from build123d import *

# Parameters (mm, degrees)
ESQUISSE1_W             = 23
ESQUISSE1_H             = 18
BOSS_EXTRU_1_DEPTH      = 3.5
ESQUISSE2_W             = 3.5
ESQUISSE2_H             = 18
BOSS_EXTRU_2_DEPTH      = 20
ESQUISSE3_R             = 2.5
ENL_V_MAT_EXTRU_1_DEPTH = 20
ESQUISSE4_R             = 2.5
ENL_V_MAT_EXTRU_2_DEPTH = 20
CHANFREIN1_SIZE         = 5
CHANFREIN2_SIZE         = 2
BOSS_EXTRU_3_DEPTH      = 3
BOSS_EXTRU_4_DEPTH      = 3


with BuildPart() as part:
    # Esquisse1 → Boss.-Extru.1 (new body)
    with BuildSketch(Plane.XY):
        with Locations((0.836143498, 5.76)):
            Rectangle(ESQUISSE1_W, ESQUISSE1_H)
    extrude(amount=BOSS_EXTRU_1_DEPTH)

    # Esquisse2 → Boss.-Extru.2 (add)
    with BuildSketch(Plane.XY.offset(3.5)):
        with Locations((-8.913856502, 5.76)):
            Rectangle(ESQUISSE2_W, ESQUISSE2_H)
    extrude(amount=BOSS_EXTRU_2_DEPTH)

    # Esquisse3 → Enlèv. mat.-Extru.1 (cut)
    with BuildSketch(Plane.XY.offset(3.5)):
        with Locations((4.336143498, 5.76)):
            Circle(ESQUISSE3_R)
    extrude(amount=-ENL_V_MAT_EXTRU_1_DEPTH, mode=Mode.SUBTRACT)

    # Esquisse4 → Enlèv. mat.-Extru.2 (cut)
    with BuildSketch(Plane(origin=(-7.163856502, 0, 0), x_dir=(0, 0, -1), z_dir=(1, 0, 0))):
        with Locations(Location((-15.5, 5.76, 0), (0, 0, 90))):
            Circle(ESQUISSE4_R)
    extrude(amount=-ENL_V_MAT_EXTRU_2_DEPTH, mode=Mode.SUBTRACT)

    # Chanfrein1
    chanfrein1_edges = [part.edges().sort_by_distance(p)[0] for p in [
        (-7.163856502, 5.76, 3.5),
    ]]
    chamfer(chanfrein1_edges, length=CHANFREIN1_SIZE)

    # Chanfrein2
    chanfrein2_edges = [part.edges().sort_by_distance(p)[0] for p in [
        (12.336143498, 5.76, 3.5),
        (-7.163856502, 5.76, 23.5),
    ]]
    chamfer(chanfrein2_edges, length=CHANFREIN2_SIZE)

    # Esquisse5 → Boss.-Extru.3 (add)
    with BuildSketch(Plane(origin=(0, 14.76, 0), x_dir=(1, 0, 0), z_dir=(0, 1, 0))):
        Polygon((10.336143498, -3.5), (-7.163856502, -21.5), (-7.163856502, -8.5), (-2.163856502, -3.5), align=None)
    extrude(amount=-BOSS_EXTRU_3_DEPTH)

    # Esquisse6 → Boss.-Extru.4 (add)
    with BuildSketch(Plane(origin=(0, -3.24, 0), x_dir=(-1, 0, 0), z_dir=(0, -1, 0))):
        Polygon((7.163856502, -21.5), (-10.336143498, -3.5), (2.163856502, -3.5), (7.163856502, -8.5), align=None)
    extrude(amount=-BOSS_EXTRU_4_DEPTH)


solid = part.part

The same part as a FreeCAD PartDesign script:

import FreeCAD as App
import Part
import Sketcher
Q = App.Units.Quantity


def edges_at(feature, points):
    """Names of the edges that pass closest to the given points."""
    edges = feature.Shape.Edges
    near = lambda p: min(range(len(edges)), key=lambda i: edges[i].distToShape(Part.Vertex(*p))[0])
    return sorted({f"Edge{near(p) + 1}" for p in points})

doc = App.newDocument("Part")
body = doc.addObject("PartDesign::Body", "Body")

# Sketch on XY plane
sketch1 = body.newObject("Sketcher::SketchObject", "Sketch")
sketch1.AttachmentSupport = (doc.getObject("XY_Plane"), [""])
sketch1.MapMode = "FlatFace"
sketch1.addGeometry(Part.LineSegment(App.Vector(-11, 15, 0), App.Vector(-11, -3, 0)), False)
sketch1.addGeometry(Part.LineSegment(App.Vector(-11, -3, 0), App.Vector(12, -3, 0)), False)
sketch1.addGeometry(Part.LineSegment(App.Vector(12, -3, 0), App.Vector(12, 15, 0)), False)
sketch1.addGeometry(Part.LineSegment(App.Vector(12, 15, 0), App.Vector(-11, 15, 0)), False)
sketch1.addConstraint(Sketcher.Constraint("Coincident", 0, 2, 1, 1))
sketch1.addConstraint(Sketcher.Constraint("Coincident", 1, 2, 2, 1))
sketch1.addConstraint(Sketcher.Constraint("Coincident", 2, 2, 3, 1))
sketch1.addConstraint(Sketcher.Constraint("Coincident", 3, 2, 0, 1))
sketch1.addConstraint(Sketcher.Constraint("Vertical", 0))
sketch1.addConstraint(Sketcher.Constraint("Horizontal", 1))
sketch1.addConstraint(Sketcher.Constraint("Vertical", 2))
sketch1.addConstraint(Sketcher.Constraint("Horizontal", 3))
sketch1.addConstraint(Sketcher.Constraint("DistanceX", 1, 1, 1, 2, 23.0))
sketch1.addConstraint(Sketcher.Constraint("DistanceY", 0, 2, 0, 1, 18.0))
sketch1.addConstraint(Sketcher.Constraint("DistanceY", 0, 2, -1, 1, 3.24))
sketch1.addConstraint(Sketcher.Constraint("DistanceX", 0, 2, -1, 1, 10.663857))
pad1 = body.newObject("PartDesign::Pad", "Pad")
pad1.Profile = sketch1
pad1.Length = 3.5

# Sketch on XY plane
sketch2 = body.newObject("Sketcher::SketchObject", "Sketch001")
sketch2.AttachmentSupport = (doc.getObject("XY_Plane"), [""])
sketch2.MapMode = "FlatFace"
sketch2.AttachmentOffset = App.Placement(App.Vector(0, 0, 3.5), App.Rotation())
sketch2.addGeometry(Part.LineSegment(App.Vector(-10.7, 14.8, 0), App.Vector(-10.7, -3.2, 0)), False)
sketch2.addGeometry(Part.LineSegment(App.Vector(-10.7, -3.2, 0), App.Vector(-7.2, -3.2, 0)), False)
sketch2.addGeometry(Part.LineSegment(App.Vector(-7.2, -3.2, 0), App.Vector(-7.2, 14.8, 0)), False)
sketch2.addGeometry(Part.LineSegment(App.Vector(-7.2, 14.8, 0), App.Vector(-10.7, 14.8, 0)), False)
sketch2.addConstraint(Sketcher.Constraint("Coincident", 0, 2, 1, 1))
sketch2.addConstraint(Sketcher.Constraint("Coincident", 1, 2, 2, 1))
sketch2.addConstraint(Sketcher.Constraint("Coincident", 2, 2, 3, 1))
sketch2.addConstraint(Sketcher.Constraint("Coincident", 3, 2, 0, 1))
sketch2.addConstraint(Sketcher.Constraint("Vertical", 0))
sketch2.addConstraint(Sketcher.Constraint("Horizontal", 1))
sketch2.addConstraint(Sketcher.Constraint("Vertical", 2))
sketch2.addConstraint(Sketcher.Constraint("Horizontal", 3))
sketch2.addConstraint(Sketcher.Constraint("DistanceY", 0, 2, 0, 1, 18.0))
sketch2.addConstraint(Sketcher.Constraint("DistanceX", 1, 1, 1, 2, 3.5))
sketch2.addConstraint(Sketcher.Constraint("DistanceY", 0, 2, -1, 1, 3.24))
sketch2.addConstraint(Sketcher.Constraint("DistanceX", 0, 2, -1, 1, 10.663857))
pad2 = body.newObject("PartDesign::Pad", "Pad001")
pad2.Profile = sketch2
pad2.Length = 20

# Sketch on XY plane
sketch3 = body.newObject("Sketcher::SketchObject", "Sketch002")
sketch3.AttachmentSupport = (doc.getObject("XY_Plane"), [""])
sketch3.MapMode = "FlatFace"
sketch3.AttachmentOffset = App.Placement(App.Vector(0, 0, 3.5), App.Rotation())
sketch3.addGeometry(Part.Circle(App.Vector(4.3, 5.8, 0), App.Vector(0, 0, 1), 2.5), False)
sketch3.addConstraint(Sketcher.Constraint("Diameter", 0, 5.0))
sketch3.addConstraint(Sketcher.Constraint("DistanceY", -1, 1, 0, 3, 5.76))
sketch3.addConstraint(Sketcher.Constraint("DistanceX", -1, 1, 0, 3, 4.336143))
pocket1 = body.newObject("PartDesign::Pocket", "Pocket")
pocket1.Profile = sketch3
pocket1.Length = 20

# Sketch on YZ plane
sketch4 = body.newObject("Sketcher::SketchObject", "Sketch003")
sketch4.AttachmentSupport = (doc.getObject("YZ_Plane"), [""])
sketch4.MapMode = "FlatFace"
sketch4.AttachmentOffset = App.Placement(App.Vector(0, 0, -7.163857), App.Rotation())
sketch4.addGeometry(Part.Circle(App.Vector(5.8, 15.5, 0), App.Vector(0, 0, 1), 2.5), False)
sketch4.addConstraint(Sketcher.Constraint("Diameter", 0, 5.0))
sketch4.addConstraint(Sketcher.Constraint("DistanceY", -1, 1, 0, 3, 15.5))
sketch4.addConstraint(Sketcher.Constraint("DistanceX", -1, 1, 0, 3, 5.76))
pocket2 = body.newObject("PartDesign::Pocket", "Pocket001")
pocket2.Profile = sketch4
pocket2.Length = 20
doc.recompute()

chamfer = body.newObject("PartDesign::Chamfer", "Chamfer")
chamfer.Base = (pocket2, edges_at(pocket2, [(-7.164, 5.76, 3.5)]))
chamfer.Size = 5
doc.recompute()

chamfer2 = body.newObject("PartDesign::Chamfer", "Chamfer001")
chamfer2.Base = (chamfer, edges_at(chamfer, [(12.336, 5.76, 3.5), (-7.164, 5.76, 23.5)]))
chamfer2.Size = 2

# Sketch on XZ plane
sketch5 = body.newObject("Sketcher::SketchObject", "Sketch004")
sketch5.AttachmentSupport = (doc.getObject("XZ_Plane"), [""])
sketch5.MapMode = "FlatFace"
sketch5.AttachmentOffset = App.Placement(App.Vector(0, 0, -14.76), App.Rotation())
sketch5.addGeometry(Part.LineSegment(App.Vector(-7, 22, 0), App.Vector(10, 4, 0)), False)
sketch5.addGeometry(Part.LineSegment(App.Vector(10, 4, 0), App.Vector(-2, 4, 0)), False)
sketch5.addGeometry(Part.LineSegment(App.Vector(-2, 4, 0), App.Vector(-7, 8, 0)), False)
sketch5.addGeometry(Part.LineSegment(App.Vector(-7, 8, 0), App.Vector(-7, 22, 0)), False)
sketch5.addConstraint(Sketcher.Constraint("Coincident", 0, 2, 1, 1))
sketch5.addConstraint(Sketcher.Constraint("Coincident", 1, 2, 2, 1))
sketch5.addConstraint(Sketcher.Constraint("Coincident", 2, 2, 3, 1))
sketch5.addConstraint(Sketcher.Constraint("Coincident", 3, 2, 0, 1))
sketch5.addConstraint(Sketcher.Constraint("Horizontal", 1))
sketch5.addConstraint(Sketcher.Constraint("Vertical", 3))
sketch5.addConstraint(Sketcher.Constraint("DistanceY", 3, 1, 3, 2, 13.0))
sketch5.addConstraint(Sketcher.Constraint("Angle", 2, Q("135 deg")))
sketch5.addConstraint(Sketcher.Constraint("DistanceX", 1, 2, 1, 1, 12.5))
sketch5.addConstraint(Sketcher.Constraint("DistanceX", 2, 2, 1, 2, 5.0))
sketch5.addConstraint(Sketcher.Constraint("DistanceY", -1, 1, 0, 2, 3.5))
sketch5.addConstraint(Sketcher.Constraint("DistanceX", -1, 1, 0, 2, 10.336143))
pad3 = body.newObject("PartDesign::Pad", "Pad002")
pad3.Profile = sketch5
pad3.Length = 3

# Sketch on XZ plane
sketch6 = body.newObject("Sketcher::SketchObject", "Sketch005")
sketch6.AttachmentSupport = (doc.getObject("XZ_Plane"), [""])
sketch6.MapMode = "FlatFace"
sketch6.AttachmentOffset = App.Placement(App.Vector(0, 0, 3.24), App.Rotation())
sketch6.addGeometry(Part.LineSegment(App.Vector(10, 4, 0), App.Vector(-7, 22, 0)), False)
sketch6.addGeometry(Part.LineSegment(App.Vector(-7, 22, 0), App.Vector(-7, 8, 0)), False)
sketch6.addGeometry(Part.LineSegment(App.Vector(-7, 8, 0), App.Vector(-2, 4, 0)), False)
sketch6.addGeometry(Part.LineSegment(App.Vector(-2, 4, 0), App.Vector(10, 4, 0)), False)
sketch6.addConstraint(Sketcher.Constraint("Coincident", 0, 2, 1, 1))
sketch6.addConstraint(Sketcher.Constraint("Coincident", 1, 2, 2, 1))
sketch6.addConstraint(Sketcher.Constraint("Coincident", 2, 2, 3, 1))
sketch6.addConstraint(Sketcher.Constraint("Coincident", 3, 2, 0, 1))
sketch6.addConstraint(Sketcher.Constraint("Vertical", 1))
sketch6.addConstraint(Sketcher.Constraint("Horizontal", 3))
sketch6.addConstraint(Sketcher.Constraint("DistanceY", 1, 2, 1, 1, 13.0))
sketch6.addConstraint(Sketcher.Constraint("Angle", 2, Q("-45 deg")))
sketch6.addConstraint(Sketcher.Constraint("DistanceX", 3, 1, 3, 2, 12.5))
sketch6.addConstraint(Sketcher.Constraint("DistanceX", 1, 2, 2, 2, 5.0))
sketch6.addConstraint(Sketcher.Constraint("DistanceY", -1, 1, 0, 2, 21.5))
sketch6.addConstraint(Sketcher.Constraint("DistanceX", 0, 2, -1, 1, 7.163857))
pad4 = body.newObject("PartDesign::Pad", "Pad003")
pad4.Profile = sketch6
pad4.Length = 3
pad4.Reversed = True

doc.recompute()
